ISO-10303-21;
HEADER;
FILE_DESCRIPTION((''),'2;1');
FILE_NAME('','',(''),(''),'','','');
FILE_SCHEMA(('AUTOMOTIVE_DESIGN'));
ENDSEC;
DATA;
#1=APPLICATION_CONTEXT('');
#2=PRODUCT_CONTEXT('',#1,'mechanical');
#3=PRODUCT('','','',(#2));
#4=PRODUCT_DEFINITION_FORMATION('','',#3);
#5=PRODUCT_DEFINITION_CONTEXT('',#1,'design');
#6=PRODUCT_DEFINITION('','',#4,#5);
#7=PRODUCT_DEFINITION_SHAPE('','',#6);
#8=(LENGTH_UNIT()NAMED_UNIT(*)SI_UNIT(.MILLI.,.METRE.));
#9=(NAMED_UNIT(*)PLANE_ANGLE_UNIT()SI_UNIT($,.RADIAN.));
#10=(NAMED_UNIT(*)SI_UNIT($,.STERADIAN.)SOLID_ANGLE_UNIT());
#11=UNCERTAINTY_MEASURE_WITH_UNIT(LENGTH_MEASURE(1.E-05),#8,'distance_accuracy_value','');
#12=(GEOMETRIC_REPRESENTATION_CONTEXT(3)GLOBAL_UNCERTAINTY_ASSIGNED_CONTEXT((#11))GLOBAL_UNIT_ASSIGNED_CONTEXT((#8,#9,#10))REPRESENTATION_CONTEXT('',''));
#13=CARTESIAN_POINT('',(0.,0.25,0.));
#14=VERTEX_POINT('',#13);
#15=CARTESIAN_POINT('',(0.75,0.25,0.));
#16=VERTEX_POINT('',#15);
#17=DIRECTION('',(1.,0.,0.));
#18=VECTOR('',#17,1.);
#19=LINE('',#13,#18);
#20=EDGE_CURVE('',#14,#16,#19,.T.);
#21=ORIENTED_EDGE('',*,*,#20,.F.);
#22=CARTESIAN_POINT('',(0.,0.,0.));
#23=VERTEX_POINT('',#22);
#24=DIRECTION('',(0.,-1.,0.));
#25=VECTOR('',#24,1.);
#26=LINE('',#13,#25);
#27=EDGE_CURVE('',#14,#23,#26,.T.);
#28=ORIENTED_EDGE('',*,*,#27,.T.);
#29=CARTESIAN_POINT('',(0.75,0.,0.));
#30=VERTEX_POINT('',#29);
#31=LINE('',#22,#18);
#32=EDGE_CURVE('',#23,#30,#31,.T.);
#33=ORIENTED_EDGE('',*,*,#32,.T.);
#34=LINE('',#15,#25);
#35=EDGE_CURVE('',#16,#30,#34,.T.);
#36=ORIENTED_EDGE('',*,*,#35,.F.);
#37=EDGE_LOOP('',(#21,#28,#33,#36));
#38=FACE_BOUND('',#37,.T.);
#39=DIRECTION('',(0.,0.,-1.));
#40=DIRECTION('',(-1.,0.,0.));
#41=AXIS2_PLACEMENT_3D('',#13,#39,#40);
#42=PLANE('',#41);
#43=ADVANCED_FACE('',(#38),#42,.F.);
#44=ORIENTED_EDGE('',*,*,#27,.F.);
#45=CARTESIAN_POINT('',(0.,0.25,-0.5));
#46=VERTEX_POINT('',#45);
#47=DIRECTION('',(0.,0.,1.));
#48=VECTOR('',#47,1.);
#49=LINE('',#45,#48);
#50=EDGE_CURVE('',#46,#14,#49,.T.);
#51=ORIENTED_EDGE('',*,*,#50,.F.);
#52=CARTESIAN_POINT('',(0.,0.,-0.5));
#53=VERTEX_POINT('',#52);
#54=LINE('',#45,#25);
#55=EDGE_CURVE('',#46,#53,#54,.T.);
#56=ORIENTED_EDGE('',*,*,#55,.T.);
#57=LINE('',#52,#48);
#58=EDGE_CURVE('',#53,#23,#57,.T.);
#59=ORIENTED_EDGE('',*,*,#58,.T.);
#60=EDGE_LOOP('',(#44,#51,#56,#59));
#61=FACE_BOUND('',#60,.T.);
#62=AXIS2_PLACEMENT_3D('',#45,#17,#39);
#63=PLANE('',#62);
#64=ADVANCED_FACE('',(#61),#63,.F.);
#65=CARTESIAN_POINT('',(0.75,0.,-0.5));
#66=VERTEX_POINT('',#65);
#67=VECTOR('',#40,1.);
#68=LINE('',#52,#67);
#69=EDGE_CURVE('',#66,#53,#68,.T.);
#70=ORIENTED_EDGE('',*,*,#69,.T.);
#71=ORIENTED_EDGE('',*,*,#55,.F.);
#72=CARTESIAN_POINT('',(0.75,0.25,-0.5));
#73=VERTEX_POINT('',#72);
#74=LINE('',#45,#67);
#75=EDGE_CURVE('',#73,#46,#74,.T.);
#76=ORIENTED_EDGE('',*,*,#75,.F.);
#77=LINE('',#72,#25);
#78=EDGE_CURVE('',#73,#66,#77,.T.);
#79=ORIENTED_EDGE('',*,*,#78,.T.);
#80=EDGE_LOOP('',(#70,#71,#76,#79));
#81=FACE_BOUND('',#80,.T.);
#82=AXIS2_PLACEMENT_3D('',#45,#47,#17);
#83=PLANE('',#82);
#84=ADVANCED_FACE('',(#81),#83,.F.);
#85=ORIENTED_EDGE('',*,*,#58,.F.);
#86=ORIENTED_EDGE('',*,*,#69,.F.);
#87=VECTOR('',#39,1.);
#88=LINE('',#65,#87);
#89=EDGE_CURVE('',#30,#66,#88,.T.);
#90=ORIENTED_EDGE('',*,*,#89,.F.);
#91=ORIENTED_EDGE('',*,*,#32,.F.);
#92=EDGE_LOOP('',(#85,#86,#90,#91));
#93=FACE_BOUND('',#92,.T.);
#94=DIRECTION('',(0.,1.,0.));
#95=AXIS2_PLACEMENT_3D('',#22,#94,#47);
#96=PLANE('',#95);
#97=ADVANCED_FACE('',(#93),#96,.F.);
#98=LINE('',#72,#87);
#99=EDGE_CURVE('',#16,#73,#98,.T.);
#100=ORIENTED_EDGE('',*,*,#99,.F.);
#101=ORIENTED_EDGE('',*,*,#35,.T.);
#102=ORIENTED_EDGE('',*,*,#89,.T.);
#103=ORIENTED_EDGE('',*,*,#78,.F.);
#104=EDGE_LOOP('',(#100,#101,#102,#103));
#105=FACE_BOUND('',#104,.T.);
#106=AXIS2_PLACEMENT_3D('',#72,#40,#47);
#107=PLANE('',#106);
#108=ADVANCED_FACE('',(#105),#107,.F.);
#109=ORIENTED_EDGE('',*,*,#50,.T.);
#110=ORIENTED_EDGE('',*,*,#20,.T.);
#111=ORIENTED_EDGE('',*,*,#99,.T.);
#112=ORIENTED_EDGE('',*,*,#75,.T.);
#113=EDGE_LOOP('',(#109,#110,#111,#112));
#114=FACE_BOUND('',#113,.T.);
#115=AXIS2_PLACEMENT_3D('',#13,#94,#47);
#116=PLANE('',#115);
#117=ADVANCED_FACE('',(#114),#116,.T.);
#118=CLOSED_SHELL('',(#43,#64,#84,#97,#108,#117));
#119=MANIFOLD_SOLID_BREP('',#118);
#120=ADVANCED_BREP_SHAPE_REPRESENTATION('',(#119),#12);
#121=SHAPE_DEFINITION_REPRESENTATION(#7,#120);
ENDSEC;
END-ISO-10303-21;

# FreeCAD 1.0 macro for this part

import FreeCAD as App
import Part
import Sketcher
Q = App.Units.Quantity

doc = App.newDocument("Part")
params = doc.addObject("Spreadsheet::Sheet", "Params")
for row, (alias, value) in enumerate([
    ("sketch1_height", "0.5 mm"),
    ("sketch1_width", "0.75 mm"),
    ("pad1_length", "0.25 mm"),
], start=1):
    params.set(f"A{row}", alias)
    params.set(f"B{row}", "=" + value)
    params.setAlias(f"B{row}", alias)

body = doc.addObject("PartDesign::Body", "Body")

# Sketch on XZ plane
sketch1 = doc.addObject("Sketcher::SketchObject", "Sketch")
body.addObject(sketch1)
sketch1.AttachmentSupport = (doc.XZ_Plane, [""])
sketch1.MapMode = "FlatFace"
sketch1.addGeometry([
    Part.LineSegment(App.Vector(0, -0.5, 0), App.Vector(0, 0, 0)),
    Part.LineSegment(App.Vector(0, 0, 0), App.Vector(0.8, 0, 0)),
    Part.LineSegment(App.Vector(0.8, 0, 0), App.Vector(0.8, -0.5, 0)),
    Part.LineSegment(App.Vector(0.8, -0.5, 0), App.Vector(0, -0.5, 0)),
], False)
sketch1.addConstraint([
    Sketcher.Constraint("Coincident", 0, 2, 1, 1),
    Sketcher.Constraint("Coincident", 1, 2, 2, 1),
    Sketcher.Constraint("Coincident", 2, 2, 3, 1),
    Sketcher.Constraint("Coincident", 3, 2, 0, 1),
    Sketcher.Constraint("Vertical", 0),
    Sketcher.Constraint("Horizontal", 1),
    Sketcher.Constraint("Vertical", 2),
    Sketcher.Constraint("Horizontal", 3),
    Sketcher.Constraint("Coincident", 0, 2, -1, 1),
    Sketcher.Constraint("DistanceY", 0, 1, 0, 2, Q("0.5 mm")),
    Sketcher.Constraint("DistanceX", 1, 1, 1, 2, Q("0.75 mm")),
])
sketch1.setExpression("Constraints[9]", "Params.sketch1_height")
sketch1.setExpression("Constraints[10]", "Params.sketch1_width")
pad1 = doc.addObject("PartDesign::Pad", "Pad")
body.addObject(pad1)
pad1.Profile = sketch1
pad1.setExpression("Length", "Params.pad1_length")
pad1.Reversed = True

doc.recompute()
